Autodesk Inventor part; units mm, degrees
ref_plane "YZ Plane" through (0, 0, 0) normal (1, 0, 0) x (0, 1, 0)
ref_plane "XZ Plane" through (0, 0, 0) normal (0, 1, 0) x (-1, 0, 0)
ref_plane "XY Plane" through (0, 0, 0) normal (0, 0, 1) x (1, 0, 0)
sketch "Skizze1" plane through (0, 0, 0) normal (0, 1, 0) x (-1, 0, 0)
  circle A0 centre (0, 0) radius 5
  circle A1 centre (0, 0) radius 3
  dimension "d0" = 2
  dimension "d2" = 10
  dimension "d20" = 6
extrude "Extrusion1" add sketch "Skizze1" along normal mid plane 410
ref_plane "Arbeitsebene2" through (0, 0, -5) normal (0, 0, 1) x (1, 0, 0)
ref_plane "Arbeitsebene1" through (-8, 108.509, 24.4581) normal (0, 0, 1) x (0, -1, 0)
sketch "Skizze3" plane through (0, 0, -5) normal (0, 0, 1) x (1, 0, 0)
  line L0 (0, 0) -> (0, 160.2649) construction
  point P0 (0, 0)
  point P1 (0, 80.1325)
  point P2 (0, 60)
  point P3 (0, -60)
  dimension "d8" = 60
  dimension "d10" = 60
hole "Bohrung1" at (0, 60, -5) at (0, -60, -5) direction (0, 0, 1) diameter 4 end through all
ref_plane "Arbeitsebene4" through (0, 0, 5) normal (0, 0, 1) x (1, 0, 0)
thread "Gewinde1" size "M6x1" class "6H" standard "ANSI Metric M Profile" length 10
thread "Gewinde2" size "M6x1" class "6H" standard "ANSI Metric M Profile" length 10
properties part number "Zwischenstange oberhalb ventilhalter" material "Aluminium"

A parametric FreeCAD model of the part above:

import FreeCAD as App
import Part
import Sketcher
from FreeCAD import Vector
Q = App.Units.Quantity

doc = App.newDocument("Part")
params = doc.addObject("Spreadsheet::Sheet", "Params")
for row, (alias, value) in enumerate([
    ("sketch1_diameter", "10 mm"),
    ("sketch1_diameter2", "6 mm"),
    ("pad1_length", "410 mm"),
    ("sketch2_diameter", "4 mm"),
    ("hole_diameter", "4 mm"),
], start=1):
    params.set(f"A{row}", alias)
    params.set(f"B{row}", "=" + value)
    params.setAlias(f"B{row}", alias)

body = doc.addObject("PartDesign::Body", "Body")

# Sketch on XZ plane
sketch1 = doc.addObject("Sketcher::SketchObject", "Sketch")
body.addObject(sketch1)
sketch1.AttachmentSupport = (doc.XZ_Plane, [""])
sketch1.MapMode = "FlatFace"
sketch1.addGeometry([
    Part.Circle(Vector(0, 0, 0), Vector(0, 0, 1), 5),
    Part.Circle(Vector(0, 0, 0), Vector(0, 0, 1), 3),
], False)
sketch1.addConstraint([
    Sketcher.Constraint("Coincident", 0, 3, -1, 1),
    Sketcher.Constraint("Coincident", 1, 3, -1, 1),
    Sketcher.Constraint("Diameter", 0, Q("10 mm")),
    Sketcher.Constraint("Diameter", 1, Q("6 mm")),
])
sketch1.setExpression("Constraints[2]", "Params.sketch1_diameter")
sketch1.setExpression("Constraints[3]", "Params.sketch1_diameter2")
pad1 = doc.addObject("PartDesign::Pad", "Pad")
body.addObject(pad1)
pad1.Profile = sketch1
pad1.setExpression("Length", "Params.pad1_length")
pad1.Midplane = True

# Sketch on XY plane
sketch2 = doc.addObject("Sketcher::SketchObject", "Sketch001")
body.addObject(sketch2)
sketch2.AttachmentSupport = (doc.XY_Plane, [""])
sketch2.MapMode = "FlatFace"
sketch2.AttachmentOffset = App.Placement(Vector(0, 0, -5), App.Rotation())
sketch2.addGeometry([
    Part.Circle(Vector(0, 60, 0), Vector(0, 0, 1), 2),
    Part.Circle(Vector(0, -60, 0), Vector(0, 0, 1), 2),
], False)
sketch2.addConstraint([
    Sketcher.Constraint("Equal", 0, 1),
    Sketcher.Constraint("Symmetric", 0, 3, 1, 3, -1, 1),
    Sketcher.Constraint("PointOnObject", 0, 3, -2),
    Sketcher.Constraint("Diameter", 0, Q("4 mm")),
    Sketcher.Constraint("DistanceY", -1, 1, 0, 3, Q("60 mm")),
])
sketch2.setExpression("Constraints[3]", "Params.sketch2_diameter")
doc.recompute()
hole = doc.addObject("PartDesign::Hole", "Hole")
body.addObject(hole)
hole.Profile = sketch2
hole.ThreadType = "None"
hole.setExpression("Diameter", "Params.hole_diameter")
hole.DepthType = "ThroughAll"
hole.Reversed = True

doc.recompute()
